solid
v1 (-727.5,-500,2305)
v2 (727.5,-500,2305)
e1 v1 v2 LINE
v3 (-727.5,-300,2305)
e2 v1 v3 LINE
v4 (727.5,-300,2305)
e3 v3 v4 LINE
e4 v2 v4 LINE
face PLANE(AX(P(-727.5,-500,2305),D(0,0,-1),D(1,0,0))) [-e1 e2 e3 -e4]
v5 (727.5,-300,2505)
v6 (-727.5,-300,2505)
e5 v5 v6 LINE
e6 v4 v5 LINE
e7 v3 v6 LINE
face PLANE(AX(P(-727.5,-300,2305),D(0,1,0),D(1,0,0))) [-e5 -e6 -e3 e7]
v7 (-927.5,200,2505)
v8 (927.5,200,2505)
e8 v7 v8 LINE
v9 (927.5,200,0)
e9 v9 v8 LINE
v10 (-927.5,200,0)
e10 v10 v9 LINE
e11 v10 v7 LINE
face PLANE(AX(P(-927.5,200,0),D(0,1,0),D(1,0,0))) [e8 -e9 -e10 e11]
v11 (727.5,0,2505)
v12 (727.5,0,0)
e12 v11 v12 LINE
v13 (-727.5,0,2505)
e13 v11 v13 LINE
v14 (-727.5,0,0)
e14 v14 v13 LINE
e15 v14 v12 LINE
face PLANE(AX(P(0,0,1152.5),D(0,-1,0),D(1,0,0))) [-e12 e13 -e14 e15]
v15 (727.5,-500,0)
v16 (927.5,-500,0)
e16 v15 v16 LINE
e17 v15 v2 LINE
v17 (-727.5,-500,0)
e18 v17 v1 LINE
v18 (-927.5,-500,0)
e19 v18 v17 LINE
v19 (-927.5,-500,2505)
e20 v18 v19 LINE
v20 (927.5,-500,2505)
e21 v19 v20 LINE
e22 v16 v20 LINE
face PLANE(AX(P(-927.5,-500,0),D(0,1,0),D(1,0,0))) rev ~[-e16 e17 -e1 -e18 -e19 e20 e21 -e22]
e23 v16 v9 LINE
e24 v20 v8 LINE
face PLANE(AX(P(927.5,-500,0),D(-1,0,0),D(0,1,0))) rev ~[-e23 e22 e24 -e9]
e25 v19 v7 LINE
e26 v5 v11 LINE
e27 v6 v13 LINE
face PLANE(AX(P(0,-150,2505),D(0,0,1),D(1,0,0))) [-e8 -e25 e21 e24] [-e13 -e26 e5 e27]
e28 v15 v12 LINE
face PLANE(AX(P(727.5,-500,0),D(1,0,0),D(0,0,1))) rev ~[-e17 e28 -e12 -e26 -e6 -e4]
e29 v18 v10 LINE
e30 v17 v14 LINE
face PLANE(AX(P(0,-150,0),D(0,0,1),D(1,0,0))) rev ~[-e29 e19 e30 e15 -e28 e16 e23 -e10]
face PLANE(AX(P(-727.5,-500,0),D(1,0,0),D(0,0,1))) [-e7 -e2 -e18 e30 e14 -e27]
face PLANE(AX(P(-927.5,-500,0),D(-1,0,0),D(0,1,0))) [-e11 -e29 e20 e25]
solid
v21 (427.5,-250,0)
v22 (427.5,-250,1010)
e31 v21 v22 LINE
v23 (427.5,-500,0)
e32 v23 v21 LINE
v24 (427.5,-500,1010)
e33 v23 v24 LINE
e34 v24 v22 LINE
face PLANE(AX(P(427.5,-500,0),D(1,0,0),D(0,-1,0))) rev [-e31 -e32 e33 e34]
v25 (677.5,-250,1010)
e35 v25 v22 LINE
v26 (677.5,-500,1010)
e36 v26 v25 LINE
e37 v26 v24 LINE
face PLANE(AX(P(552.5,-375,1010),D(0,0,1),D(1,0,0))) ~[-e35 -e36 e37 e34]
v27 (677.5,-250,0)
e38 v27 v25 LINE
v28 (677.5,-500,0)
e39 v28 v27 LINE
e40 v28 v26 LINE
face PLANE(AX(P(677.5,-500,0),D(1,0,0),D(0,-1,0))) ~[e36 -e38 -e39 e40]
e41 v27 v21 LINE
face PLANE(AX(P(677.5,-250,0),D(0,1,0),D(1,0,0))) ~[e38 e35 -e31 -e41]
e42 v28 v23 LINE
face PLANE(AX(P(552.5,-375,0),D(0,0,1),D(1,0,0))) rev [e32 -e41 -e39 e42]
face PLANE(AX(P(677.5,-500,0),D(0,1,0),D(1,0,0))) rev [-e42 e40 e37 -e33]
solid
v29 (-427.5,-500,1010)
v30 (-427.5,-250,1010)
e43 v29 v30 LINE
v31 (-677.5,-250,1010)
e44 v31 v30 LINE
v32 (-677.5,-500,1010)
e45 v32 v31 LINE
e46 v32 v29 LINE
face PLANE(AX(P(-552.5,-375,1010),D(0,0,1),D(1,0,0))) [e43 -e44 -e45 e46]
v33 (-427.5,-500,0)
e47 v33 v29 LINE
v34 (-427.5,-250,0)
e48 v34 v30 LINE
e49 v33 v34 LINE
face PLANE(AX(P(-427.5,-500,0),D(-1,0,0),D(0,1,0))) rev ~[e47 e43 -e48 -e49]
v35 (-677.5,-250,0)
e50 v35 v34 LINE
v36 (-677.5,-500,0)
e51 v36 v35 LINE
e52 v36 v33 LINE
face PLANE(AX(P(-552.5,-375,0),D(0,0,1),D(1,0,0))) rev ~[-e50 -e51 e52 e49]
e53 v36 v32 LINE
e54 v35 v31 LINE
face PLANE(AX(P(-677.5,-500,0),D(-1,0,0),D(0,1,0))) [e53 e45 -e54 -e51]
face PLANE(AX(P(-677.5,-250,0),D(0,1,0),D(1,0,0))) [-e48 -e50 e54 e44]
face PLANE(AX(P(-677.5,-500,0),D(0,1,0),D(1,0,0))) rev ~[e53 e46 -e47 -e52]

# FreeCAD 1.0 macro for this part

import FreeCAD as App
import Part
import Sketcher

V = App.Vector
Q = App.Units.Quantity

doc = App.newDocument("Part")
body = doc.addObject("PartDesign::Body", "Body")

sketch1 = doc.addObject("Sketcher::SketchObject", "Sketch")
body.addObject(sketch1)
sketch1.AttachmentSupport = (doc.XY_Plane, [""])
sketch1.MapMode = "FlatFace"
sketch1.addGeometry([
    Part.LineSegment(V(-927.5, 200, 0), V(-927.5, -500, 0)),
    Part.LineSegment(V(-927.5, -500, 0), V(927.5, -500, 0)),
    Part.LineSegment(V(927.5, -500, 0), V(927.5, 200, 0)),
    Part.LineSegment(V(927.5, 200, 0), V(-927.5, 200, 0)),
], False)
sketch1.addConstraint([
    Sketcher.Constraint("Coincident", 0, 2, 1, 1),
    Sketcher.Constraint("Coincident", 1, 2, 2, 1),
    Sketcher.Constraint("Coincident", 2, 2, 3, 1),
    Sketcher.Constraint("Coincident", 3, 2, 0, 1),
    Sketcher.Constraint("Vertical", 0),
    Sketcher.Constraint("Horizontal", 1),
    Sketcher.Constraint("Vertical", 2),
    Sketcher.Constraint("Horizontal", 3),
    Sketcher.Constraint("DistanceX", 1, 1, 1, 2, Q("1855 mm")),
    Sketcher.Constraint("DistanceY", 0, 2, 0, 1, Q("700 mm")),
    Sketcher.Constraint("DistanceY", 0, 2, -1, 1, Q("500 mm")),
    Sketcher.Constraint("DistanceX", 0, 2, -1, 1, Q("927.5 mm")),
])
pad1 = doc.addObject("PartDesign::Pad", "Pad")
body.addObject(pad1)
pad1.Profile = sketch1
pad1.Length = 2505

sketch2 = doc.addObject("Sketcher::SketchObject", "Sketch001")
body.addObject(sketch2)
sketch2.AttachmentSupport = (doc.XZ_Plane, [""])
sketch2.MapMode = "FlatFace"
sketch2.AttachmentOffset = App.Placement(V(0, 0, 500), App.Rotation())
sketch2.addGeometry([
    Part.LineSegment(V(-727.5, 2305, 0), V(-727.5, 0, 0)),
    Part.LineSegment(V(-727.5, 0, 0), V(727.5, 0, 0)),
    Part.LineSegment(V(727.5, 0, 0), V(727.5, 2305, 0)),
    Part.LineSegment(V(727.5, 2305, 0), V(-727.5, 2305, 0)),
], False)
sketch2.addConstraint([
    Sketcher.Constraint("Coincident", 0, 2, 1, 1),
    Sketcher.Constraint("Coincident", 1, 2, 2, 1),
    Sketcher.Constraint("Coincident", 2, 2, 3, 1),
    Sketcher.Constraint("Coincident", 3, 2, 0, 1),
    Sketcher.Constraint("Vertical", 0),
    Sketcher.Constraint("Horizontal", 1),
    Sketcher.Constraint("Vertical", 2),
    Sketcher.Constraint("Horizontal", 3),
    Sketcher.Constraint("Symmetric", 0, 2, 1, 2, -1, 1),
    Sketcher.Constraint("DistanceX", 1, 1, 1, 2, Q("1455 mm")),
    Sketcher.Constraint("DistanceY", 0, 2, 0, 1, Q("2305 mm")),
])
pocket1 = doc.addObject("PartDesign::Pocket", "Pocket")
body.addObject(pocket1)
pocket1.Profile = sketch2
pocket1.Length = 500

sketch3 = doc.addObject("Sketcher::SketchObject", "Sketch002")
body.addObject(sketch3)
sketch3.AttachmentSupport = (doc.XY_Plane, [""])
sketch3.MapMode = "FlatFace"
sketch3.AttachmentOffset = App.Placement(V(0, 0, 2305), App.Rotation())
sketch3.addGeometry([
    Part.LineSegment(V(-727.5, -300, 0), V(-727.5, 0, 0)),
    Part.LineSegment(V(-727.5, 0, 0), V(727.5, 0, 0)),
    Part.LineSegment(V(727.5, 0, 0), V(727.5, -300, 0)),
    Part.LineSegment(V(727.5, -300, 0), V(-727.5, -300, 0)),
], False)
sketch3.addConstraint([
    Sketcher.Constraint("Coincident", 0, 2, 1, 1),
    Sketcher.Constraint("Coincident", 1, 2, 2, 1),
    Sketcher.Constraint("Coincident", 2, 2, 3, 1),
    Sketcher.Constraint("Coincident", 3, 2, 0, 1),
    Sketcher.Constraint("Vertical", 0),
    Sketcher.Constraint("Horizontal", 1),
    Sketcher.Constraint("Vertical", 2),
    Sketcher.Constraint("Horizontal", 3),
    Sketcher.Constraint("Symmetric", 0, 2, 1, 2, -1, 1),
    Sketcher.Constraint("DistanceX", 1, 1, 1, 2, Q("1455 mm")),
    Sketcher.Constraint("DistanceY", 0, 1, 0, 2, Q("300 mm")),
])
pocket2 = doc.addObject("PartDesign::Pocket", "Pocket001")
body.addObject(pocket2)
pocket2.Profile = sketch3
pocket2.Type = "ThroughAll"
pocket2.Reversed = True
body2 = doc.addObject("PartDesign::Body", "Body001")

sketch4 = doc.addObject("Sketcher::SketchObject", "Sketch003")
body2.addObject(sketch4)
sketch4.AttachmentSupport = (doc.getObject("XY_Plane001"), [""])
sketch4.MapMode = "FlatFace"
sketch4.addGeometry([
    Part.LineSegment(V(-677.5, -250, 0), V(-677.5, -500, 0)),
    Part.LineSegment(V(-677.5, -500, 0), V(-427.5, -500, 0)),
    Part.LineSegment(V(-427.5, -500, 0), V(-427.5, -250, 0)),
    Part.LineSegment(V(-427.5, -250, 0), V(-677.5, -250, 0)),
], False)
sketch4.addConstraint([
    Sketcher.Constraint("Coincident", 0, 2, 1, 1),
    Sketcher.Constraint("Coincident", 1, 2, 2, 1),
    Sketcher.Constraint("Coincident", 2, 2, 3, 1),
    Sketcher.Constraint("Coincident", 3, 2, 0, 1),
    Sketcher.Constraint("Vertical", 0),
    Sketcher.Constraint("Horizontal", 1),
    Sketcher.Constraint("Vertical", 2),
    Sketcher.Constraint("Horizontal", 3),
    Sketcher.Constraint("Equal", 3, 0),
    Sketcher.Constraint("DistanceX", 1, 1, 1, 2, Q("250 mm")),
    Sketcher.Constraint("DistanceY", 0, 2, -1, 1, Q("500 mm")),
    Sketcher.Constraint("DistanceX", 0, 2, -1, 1, Q("677.5 mm")),
])
pad2 = doc.addObject("PartDesign::Pad", "Pad001")
body2.addObject(pad2)
pad2.Profile = sketch4
pad2.Length = 1010
body3 = doc.addObject("PartDesign::Body", "Body002")
doc.recompute()

mirroring = doc.addObject("Part::Mirroring", "Mirroring")
mirroring.Source = body2
mirroring.Base = V(0, 0, 0)
mirroring.Normal = V(1, 0, 0)
body3.BaseFeature = mirroring
doc.recompute()
mirroring.Visibility = False

doc.recompute()
